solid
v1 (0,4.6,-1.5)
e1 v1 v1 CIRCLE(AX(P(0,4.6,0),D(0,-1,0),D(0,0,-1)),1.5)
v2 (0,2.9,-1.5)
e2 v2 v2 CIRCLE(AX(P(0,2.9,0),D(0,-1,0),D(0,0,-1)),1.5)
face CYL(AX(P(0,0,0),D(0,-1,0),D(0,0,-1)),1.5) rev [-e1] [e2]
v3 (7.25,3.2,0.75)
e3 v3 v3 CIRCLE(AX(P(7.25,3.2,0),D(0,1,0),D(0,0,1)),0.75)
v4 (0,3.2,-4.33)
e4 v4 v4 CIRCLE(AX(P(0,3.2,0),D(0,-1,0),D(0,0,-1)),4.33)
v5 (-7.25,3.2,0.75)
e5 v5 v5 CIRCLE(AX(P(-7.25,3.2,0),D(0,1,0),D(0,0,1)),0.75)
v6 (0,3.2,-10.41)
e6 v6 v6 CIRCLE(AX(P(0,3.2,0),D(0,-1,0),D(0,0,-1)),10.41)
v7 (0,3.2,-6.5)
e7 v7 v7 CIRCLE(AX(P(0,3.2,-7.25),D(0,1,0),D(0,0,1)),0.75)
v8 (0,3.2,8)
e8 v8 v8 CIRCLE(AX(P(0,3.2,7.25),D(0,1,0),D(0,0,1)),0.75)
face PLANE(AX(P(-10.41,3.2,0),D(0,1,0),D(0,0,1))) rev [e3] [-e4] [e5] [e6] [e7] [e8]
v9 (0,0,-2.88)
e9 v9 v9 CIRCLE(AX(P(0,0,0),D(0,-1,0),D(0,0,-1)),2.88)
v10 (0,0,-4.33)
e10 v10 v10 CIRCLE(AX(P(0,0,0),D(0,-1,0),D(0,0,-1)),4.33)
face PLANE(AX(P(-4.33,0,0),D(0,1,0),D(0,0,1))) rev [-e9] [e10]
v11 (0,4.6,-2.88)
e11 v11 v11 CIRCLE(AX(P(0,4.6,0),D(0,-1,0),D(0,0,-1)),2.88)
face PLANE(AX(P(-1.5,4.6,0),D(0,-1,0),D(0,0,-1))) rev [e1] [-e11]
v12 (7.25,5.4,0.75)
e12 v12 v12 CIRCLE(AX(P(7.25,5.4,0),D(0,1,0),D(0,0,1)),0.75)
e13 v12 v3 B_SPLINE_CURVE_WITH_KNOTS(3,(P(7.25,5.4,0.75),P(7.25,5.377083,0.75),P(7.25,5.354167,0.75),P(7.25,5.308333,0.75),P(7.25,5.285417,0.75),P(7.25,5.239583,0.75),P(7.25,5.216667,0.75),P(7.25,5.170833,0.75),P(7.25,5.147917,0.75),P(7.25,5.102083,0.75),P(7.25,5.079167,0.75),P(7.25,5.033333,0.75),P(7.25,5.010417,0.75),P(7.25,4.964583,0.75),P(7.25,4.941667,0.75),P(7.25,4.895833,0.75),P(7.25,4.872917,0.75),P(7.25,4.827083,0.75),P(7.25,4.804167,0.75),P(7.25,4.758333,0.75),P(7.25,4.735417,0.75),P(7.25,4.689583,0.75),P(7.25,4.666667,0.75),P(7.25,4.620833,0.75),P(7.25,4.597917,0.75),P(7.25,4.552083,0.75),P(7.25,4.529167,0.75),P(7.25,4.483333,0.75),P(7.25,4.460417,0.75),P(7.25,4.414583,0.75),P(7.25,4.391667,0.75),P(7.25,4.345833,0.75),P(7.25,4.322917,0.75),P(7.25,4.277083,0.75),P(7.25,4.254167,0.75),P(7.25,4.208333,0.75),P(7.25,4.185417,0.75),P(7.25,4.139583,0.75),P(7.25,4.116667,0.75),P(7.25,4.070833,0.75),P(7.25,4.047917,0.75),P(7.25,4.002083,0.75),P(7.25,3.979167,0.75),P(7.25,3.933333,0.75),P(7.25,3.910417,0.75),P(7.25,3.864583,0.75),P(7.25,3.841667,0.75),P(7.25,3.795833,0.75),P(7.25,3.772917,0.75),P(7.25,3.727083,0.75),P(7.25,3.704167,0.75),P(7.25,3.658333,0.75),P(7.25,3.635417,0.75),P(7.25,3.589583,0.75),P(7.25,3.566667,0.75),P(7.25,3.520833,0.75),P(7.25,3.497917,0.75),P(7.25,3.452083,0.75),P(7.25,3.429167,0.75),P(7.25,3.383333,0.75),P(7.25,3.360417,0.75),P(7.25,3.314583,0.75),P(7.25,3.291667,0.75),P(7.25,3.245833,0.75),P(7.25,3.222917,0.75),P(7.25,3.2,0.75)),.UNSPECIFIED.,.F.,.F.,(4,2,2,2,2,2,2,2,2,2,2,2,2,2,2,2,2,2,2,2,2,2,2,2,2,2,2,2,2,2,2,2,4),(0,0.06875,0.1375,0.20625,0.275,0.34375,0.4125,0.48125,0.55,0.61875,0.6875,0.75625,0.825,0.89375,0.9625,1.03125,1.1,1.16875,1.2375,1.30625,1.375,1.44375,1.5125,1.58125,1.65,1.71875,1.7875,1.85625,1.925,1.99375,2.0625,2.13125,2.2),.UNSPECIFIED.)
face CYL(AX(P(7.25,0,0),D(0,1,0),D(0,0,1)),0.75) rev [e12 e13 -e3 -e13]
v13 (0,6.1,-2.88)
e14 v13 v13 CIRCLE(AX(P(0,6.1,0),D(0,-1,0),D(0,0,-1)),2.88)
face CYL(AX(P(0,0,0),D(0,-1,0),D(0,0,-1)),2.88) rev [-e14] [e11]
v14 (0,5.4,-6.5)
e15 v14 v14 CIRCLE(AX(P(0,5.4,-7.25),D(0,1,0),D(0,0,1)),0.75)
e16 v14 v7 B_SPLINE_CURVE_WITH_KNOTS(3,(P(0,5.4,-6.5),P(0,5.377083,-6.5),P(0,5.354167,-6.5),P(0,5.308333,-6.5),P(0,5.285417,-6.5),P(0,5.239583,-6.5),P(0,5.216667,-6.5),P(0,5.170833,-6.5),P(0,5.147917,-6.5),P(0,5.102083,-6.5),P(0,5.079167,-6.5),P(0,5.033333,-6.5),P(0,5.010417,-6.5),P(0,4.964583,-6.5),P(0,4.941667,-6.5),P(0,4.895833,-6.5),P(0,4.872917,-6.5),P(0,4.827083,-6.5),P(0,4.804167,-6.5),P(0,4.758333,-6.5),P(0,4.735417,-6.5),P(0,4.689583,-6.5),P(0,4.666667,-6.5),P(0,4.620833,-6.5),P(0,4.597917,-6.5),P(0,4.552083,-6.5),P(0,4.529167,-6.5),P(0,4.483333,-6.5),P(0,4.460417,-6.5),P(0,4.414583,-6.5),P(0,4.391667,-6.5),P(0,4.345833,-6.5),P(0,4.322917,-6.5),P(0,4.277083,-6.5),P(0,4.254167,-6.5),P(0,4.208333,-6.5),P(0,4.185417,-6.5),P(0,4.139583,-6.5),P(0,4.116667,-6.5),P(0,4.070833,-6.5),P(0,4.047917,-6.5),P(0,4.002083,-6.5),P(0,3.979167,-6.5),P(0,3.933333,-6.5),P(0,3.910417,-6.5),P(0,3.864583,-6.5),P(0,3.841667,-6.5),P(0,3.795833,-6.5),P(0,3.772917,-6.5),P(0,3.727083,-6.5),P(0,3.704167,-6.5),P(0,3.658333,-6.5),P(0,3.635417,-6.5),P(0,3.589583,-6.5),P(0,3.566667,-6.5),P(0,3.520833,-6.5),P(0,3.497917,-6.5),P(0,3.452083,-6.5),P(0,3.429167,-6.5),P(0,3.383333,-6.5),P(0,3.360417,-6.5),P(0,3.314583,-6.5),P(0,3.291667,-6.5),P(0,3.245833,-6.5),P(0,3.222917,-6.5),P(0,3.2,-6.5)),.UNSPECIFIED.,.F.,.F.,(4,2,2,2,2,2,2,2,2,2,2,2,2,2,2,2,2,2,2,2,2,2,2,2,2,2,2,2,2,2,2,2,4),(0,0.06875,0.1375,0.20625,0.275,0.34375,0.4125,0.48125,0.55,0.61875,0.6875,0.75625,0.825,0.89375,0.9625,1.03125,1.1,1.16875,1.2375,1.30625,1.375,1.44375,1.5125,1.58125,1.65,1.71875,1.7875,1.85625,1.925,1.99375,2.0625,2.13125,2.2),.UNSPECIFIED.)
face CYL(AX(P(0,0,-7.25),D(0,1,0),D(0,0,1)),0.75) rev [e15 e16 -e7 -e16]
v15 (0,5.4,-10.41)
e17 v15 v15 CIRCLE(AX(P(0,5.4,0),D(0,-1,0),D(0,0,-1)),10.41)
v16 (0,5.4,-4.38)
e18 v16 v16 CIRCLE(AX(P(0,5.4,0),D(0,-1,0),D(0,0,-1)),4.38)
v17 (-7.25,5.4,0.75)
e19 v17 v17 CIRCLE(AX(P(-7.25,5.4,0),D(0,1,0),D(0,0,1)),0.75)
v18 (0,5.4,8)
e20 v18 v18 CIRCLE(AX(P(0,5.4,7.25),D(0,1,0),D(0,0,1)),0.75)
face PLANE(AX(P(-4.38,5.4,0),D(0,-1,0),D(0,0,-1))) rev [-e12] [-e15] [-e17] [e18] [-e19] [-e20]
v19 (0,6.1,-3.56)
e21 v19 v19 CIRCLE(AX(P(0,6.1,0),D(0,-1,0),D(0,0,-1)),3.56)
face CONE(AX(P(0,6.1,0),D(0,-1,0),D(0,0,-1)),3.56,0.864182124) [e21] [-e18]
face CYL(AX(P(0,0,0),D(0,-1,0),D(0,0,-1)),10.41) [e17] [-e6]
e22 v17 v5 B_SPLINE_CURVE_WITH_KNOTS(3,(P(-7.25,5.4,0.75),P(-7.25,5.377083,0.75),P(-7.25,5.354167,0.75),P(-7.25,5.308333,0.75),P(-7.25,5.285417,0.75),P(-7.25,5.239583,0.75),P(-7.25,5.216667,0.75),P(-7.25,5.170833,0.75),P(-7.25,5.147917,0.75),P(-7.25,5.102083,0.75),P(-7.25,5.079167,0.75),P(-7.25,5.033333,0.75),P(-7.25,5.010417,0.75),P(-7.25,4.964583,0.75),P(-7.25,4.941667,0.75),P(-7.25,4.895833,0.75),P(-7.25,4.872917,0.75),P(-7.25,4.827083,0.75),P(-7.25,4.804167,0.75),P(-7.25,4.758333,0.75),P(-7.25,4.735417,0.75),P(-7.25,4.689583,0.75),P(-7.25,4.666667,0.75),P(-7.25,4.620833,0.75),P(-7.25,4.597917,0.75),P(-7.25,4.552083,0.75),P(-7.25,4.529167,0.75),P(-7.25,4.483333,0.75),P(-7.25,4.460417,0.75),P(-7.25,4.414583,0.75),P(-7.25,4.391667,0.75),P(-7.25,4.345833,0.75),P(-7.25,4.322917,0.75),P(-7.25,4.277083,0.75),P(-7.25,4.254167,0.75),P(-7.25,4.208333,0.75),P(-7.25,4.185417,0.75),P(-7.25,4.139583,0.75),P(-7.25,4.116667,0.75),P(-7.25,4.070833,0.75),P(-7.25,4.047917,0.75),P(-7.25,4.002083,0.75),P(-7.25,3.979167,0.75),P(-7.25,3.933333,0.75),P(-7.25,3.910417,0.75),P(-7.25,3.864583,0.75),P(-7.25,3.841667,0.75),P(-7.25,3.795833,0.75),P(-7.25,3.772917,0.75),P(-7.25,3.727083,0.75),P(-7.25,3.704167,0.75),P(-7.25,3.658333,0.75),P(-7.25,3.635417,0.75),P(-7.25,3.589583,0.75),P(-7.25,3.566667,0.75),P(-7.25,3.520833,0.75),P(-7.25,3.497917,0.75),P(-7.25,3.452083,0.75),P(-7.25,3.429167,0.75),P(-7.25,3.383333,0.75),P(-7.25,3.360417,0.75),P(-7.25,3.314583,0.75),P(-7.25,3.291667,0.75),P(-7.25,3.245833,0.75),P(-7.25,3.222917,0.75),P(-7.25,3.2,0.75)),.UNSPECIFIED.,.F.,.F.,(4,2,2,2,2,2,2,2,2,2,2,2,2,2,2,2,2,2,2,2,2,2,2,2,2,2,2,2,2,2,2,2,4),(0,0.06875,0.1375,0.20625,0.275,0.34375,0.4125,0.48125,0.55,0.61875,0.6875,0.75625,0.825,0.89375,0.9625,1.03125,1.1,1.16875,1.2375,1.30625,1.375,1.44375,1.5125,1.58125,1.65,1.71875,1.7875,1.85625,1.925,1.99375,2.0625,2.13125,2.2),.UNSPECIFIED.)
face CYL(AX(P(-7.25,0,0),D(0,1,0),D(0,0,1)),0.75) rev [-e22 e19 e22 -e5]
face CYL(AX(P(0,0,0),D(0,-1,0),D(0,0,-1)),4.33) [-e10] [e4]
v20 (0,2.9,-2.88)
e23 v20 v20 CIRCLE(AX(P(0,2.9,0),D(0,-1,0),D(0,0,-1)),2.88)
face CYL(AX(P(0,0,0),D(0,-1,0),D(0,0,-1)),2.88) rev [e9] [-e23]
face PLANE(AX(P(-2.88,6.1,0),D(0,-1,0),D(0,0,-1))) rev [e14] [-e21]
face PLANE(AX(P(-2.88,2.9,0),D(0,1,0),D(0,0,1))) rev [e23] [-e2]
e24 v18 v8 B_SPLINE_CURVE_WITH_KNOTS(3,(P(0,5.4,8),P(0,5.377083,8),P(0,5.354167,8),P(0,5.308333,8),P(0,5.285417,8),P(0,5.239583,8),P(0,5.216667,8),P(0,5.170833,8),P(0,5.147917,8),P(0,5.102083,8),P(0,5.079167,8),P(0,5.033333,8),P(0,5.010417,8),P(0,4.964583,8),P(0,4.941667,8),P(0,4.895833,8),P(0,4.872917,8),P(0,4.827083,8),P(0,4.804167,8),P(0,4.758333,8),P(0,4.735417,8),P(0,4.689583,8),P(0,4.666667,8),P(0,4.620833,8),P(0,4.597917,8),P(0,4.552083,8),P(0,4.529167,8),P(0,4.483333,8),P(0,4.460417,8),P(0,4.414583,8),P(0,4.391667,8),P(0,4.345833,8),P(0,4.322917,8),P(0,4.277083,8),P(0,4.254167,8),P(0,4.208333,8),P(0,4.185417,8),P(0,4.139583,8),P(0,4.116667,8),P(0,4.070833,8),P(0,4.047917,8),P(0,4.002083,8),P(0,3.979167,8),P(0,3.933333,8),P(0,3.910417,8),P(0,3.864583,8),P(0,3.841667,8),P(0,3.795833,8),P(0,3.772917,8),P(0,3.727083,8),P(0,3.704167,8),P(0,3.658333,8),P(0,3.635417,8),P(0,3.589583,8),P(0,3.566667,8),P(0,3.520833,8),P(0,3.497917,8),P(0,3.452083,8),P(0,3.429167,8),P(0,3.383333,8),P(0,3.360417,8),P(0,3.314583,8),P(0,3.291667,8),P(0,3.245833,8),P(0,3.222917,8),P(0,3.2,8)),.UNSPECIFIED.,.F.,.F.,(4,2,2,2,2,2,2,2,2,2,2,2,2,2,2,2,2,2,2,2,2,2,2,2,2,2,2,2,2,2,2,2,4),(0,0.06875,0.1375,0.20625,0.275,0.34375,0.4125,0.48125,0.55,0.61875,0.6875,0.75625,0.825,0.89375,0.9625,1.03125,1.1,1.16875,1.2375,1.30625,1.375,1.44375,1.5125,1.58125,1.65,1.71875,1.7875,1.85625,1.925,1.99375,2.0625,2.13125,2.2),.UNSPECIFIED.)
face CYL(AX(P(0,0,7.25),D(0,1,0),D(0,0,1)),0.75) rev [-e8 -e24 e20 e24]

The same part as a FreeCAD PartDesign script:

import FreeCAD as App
import Part
import Sketcher
from FreeCAD import Vector


def add_polygon(sketch, points):
    """Adds a closed chain of lines whose ends are joined by coincident constraints."""
    first, n = sketch.GeometryCount, len(points)
    for a, b in zip(points, points[1:] + points[:1]):
        sketch.addGeometry(Part.LineSegment(App.Vector(*a, 0), App.Vector(*b, 0)), False)
    for i in range(n):
        sketch.addConstraint(Sketcher.Constraint("Coincident", first + i, 2, first + (i + 1) % n, 1))

doc = App.newDocument("Part")
params = doc.addObject("Spreadsheet::Sheet", "Params")
for row, (alias, value) in enumerate([
    ("sketch1_height", "2.9 mm"),
    ("sketch1_height2", "1.7 mm"),
    ("sketch1_height3", "1.5 mm"),
    ("sketch1_height4", "2.2 mm"),
    ("sketch1_height5", "3.2 mm"),
    ("revolution_angle", "360 deg"),
    ("sketch2_diameter", "1.5 mm"),
], start=1):
    params.set(f"A{row}", alias)
    params.set(f"B{row}", "=" + value)
    params.setAlias(f"B{row}", alias)

body = doc.addObject("PartDesign::Body", "Body")

# Sketch on XY plane
sketch1 = doc.addObject("Sketcher::SketchObject", "Sketch")
body.addObject(sketch1)
sketch1.AttachmentSupport = (doc.XY_Plane, [""])
sketch1.MapMode = "FlatFace"
add_polygon(sketch1, [(-2.9, 0), (-2.9, 2.9), (-1.5, 2.9), (-1.5, 4.6), (-2.9, 4.6), (-2.9, 6.1), (-3.6, 6.1), (-4.4, 5.4), (-10.4, 5.4), (-10.4, 3.2), (-4.3, 3.2), (-4.3, 0)])  # lines 0-11
sketch1.addConstraint([
    Sketcher.Constraint("Vertical", 0),
    Sketcher.Constraint("Horizontal", 1),
    Sketcher.Constraint("Vertical", 2),
    Sketcher.Constraint("Horizontal", 3),
    Sketcher.Constraint("Vertical", 4),
    Sketcher.Constraint("Horizontal", 5),
    Sketcher.Constraint("Horizontal", 7),
    Sketcher.Constraint("Vertical", 8),
    Sketcher.Constraint("Horizontal", 9),
    Sketcher.Constraint("Vertical", 10),
    Sketcher.Constraint("Horizontal", 11),
    Sketcher.Constraint("PointOnObject", 10, 2, -1),
    Sketcher.Constraint("Vertical", 0, 2, 3, 2),
    Sketcher.Constraint("DistanceY", 0, 1, 0, 2, 2.9),
    Sketcher.Constraint("DistanceY", 2, 1, 2, 2, 1.7),
    Sketcher.Constraint("DistanceY", 4, 1, 4, 2, 1.5),
    Sketcher.Constraint("DistanceY", 8, 2, 8, 1, 2.2),
    Sketcher.Constraint("DistanceY", 10, 2, 10, 1, 3.2),
    Sketcher.Constraint("DistanceX", 1, 1, 1, 2, 1.38),
    Sketcher.Constraint("DistanceX", 5, 2, 5, 1, 0.68),
    Sketcher.Constraint("DistanceX", 7, 2, 7, 1, 6.03),
    Sketcher.Constraint("DistanceX", 9, 1, 9, 2, 6.08),
    Sketcher.Constraint("DistanceX", 11, 1, 11, 2, 1.45),
    Sketcher.Constraint("DistanceX", 1, 2, -1, 1, 1.5),
])
sketch1.setExpression("Constraints[25]", "Params.sketch1_height")
sketch1.setExpression("Constraints[26]", "Params.sketch1_height2")
sketch1.setExpression("Constraints[27]", "Params.sketch1_height3")
sketch1.setExpression("Constraints[28]", "Params.sketch1_height4")
sketch1.setExpression("Constraints[29]", "Params.sketch1_height5")
revolution = doc.addObject("PartDesign::Revolution", "Revolution")
body.addObject(revolution)
revolution.Profile = sketch1
revolution.ReferenceAxis = (sketch1, ["V_Axis"])
revolution.setExpression("Angle", "Params.revolution_angle")

# Sketch on XZ plane
sketch2 = doc.addObject("Sketcher::SketchObject", "Sketch001")
body.addObject(sketch2)
sketch2.AttachmentSupport = (doc.XZ_Plane, [""])
sketch2.MapMode = "FlatFace"
sketch2.AttachmentOffset = App.Placement(Vector(0, 0, -5.4), App.Rotation())
sketch2.addGeometry([
    Part.Circle(Vector(0, -7.2, 0), Vector(0, 0, 1), 0.8),
    Part.Circle(Vector(7.2, 0, 0), Vector(0, 0, 1), 0.8),
    Part.Circle(Vector(0, 7.2, 0), Vector(0, 0, 1), 0.8),
    Part.Circle(Vector(-7.2, 0, 0), Vector(0, 0, 1), 0.8),
], False)
sketch2.addConstraint([
    Sketcher.Constraint("Equal", 0, 1),
    Sketcher.Constraint("Equal", 1, 2),
    Sketcher.Constraint("Equal", 2, 3),
    Sketcher.Constraint("Symmetric", 0, 3, 2, 3, -1, 1),
    Sketcher.Constraint("Symmetric", 1, 3, 3, 3, -1, 1),
    Sketcher.Constraint("PointOnObject", 0, 3, -2),
    Sketcher.Constraint("PointOnObject", 1, 3, -1),
    Sketcher.Constraint("Diameter", 0, 1.5),
    Sketcher.Constraint("DistanceY", 0, 3, 2, 3, 14.5),
    Sketcher.Constraint("DistanceX", 3, 3, 1, 3, 14.5),
])
sketch2.setExpression("Constraints[7]", "Params.sketch2_diameter")
pocket1 = doc.addObject("PartDesign::Pocket", "Pocket")
body.addObject(pocket1)
pocket1.Profile = sketch2
pocket1.Type = "ThroughAll"
pocket1.Reversed = True

doc.recompute()
